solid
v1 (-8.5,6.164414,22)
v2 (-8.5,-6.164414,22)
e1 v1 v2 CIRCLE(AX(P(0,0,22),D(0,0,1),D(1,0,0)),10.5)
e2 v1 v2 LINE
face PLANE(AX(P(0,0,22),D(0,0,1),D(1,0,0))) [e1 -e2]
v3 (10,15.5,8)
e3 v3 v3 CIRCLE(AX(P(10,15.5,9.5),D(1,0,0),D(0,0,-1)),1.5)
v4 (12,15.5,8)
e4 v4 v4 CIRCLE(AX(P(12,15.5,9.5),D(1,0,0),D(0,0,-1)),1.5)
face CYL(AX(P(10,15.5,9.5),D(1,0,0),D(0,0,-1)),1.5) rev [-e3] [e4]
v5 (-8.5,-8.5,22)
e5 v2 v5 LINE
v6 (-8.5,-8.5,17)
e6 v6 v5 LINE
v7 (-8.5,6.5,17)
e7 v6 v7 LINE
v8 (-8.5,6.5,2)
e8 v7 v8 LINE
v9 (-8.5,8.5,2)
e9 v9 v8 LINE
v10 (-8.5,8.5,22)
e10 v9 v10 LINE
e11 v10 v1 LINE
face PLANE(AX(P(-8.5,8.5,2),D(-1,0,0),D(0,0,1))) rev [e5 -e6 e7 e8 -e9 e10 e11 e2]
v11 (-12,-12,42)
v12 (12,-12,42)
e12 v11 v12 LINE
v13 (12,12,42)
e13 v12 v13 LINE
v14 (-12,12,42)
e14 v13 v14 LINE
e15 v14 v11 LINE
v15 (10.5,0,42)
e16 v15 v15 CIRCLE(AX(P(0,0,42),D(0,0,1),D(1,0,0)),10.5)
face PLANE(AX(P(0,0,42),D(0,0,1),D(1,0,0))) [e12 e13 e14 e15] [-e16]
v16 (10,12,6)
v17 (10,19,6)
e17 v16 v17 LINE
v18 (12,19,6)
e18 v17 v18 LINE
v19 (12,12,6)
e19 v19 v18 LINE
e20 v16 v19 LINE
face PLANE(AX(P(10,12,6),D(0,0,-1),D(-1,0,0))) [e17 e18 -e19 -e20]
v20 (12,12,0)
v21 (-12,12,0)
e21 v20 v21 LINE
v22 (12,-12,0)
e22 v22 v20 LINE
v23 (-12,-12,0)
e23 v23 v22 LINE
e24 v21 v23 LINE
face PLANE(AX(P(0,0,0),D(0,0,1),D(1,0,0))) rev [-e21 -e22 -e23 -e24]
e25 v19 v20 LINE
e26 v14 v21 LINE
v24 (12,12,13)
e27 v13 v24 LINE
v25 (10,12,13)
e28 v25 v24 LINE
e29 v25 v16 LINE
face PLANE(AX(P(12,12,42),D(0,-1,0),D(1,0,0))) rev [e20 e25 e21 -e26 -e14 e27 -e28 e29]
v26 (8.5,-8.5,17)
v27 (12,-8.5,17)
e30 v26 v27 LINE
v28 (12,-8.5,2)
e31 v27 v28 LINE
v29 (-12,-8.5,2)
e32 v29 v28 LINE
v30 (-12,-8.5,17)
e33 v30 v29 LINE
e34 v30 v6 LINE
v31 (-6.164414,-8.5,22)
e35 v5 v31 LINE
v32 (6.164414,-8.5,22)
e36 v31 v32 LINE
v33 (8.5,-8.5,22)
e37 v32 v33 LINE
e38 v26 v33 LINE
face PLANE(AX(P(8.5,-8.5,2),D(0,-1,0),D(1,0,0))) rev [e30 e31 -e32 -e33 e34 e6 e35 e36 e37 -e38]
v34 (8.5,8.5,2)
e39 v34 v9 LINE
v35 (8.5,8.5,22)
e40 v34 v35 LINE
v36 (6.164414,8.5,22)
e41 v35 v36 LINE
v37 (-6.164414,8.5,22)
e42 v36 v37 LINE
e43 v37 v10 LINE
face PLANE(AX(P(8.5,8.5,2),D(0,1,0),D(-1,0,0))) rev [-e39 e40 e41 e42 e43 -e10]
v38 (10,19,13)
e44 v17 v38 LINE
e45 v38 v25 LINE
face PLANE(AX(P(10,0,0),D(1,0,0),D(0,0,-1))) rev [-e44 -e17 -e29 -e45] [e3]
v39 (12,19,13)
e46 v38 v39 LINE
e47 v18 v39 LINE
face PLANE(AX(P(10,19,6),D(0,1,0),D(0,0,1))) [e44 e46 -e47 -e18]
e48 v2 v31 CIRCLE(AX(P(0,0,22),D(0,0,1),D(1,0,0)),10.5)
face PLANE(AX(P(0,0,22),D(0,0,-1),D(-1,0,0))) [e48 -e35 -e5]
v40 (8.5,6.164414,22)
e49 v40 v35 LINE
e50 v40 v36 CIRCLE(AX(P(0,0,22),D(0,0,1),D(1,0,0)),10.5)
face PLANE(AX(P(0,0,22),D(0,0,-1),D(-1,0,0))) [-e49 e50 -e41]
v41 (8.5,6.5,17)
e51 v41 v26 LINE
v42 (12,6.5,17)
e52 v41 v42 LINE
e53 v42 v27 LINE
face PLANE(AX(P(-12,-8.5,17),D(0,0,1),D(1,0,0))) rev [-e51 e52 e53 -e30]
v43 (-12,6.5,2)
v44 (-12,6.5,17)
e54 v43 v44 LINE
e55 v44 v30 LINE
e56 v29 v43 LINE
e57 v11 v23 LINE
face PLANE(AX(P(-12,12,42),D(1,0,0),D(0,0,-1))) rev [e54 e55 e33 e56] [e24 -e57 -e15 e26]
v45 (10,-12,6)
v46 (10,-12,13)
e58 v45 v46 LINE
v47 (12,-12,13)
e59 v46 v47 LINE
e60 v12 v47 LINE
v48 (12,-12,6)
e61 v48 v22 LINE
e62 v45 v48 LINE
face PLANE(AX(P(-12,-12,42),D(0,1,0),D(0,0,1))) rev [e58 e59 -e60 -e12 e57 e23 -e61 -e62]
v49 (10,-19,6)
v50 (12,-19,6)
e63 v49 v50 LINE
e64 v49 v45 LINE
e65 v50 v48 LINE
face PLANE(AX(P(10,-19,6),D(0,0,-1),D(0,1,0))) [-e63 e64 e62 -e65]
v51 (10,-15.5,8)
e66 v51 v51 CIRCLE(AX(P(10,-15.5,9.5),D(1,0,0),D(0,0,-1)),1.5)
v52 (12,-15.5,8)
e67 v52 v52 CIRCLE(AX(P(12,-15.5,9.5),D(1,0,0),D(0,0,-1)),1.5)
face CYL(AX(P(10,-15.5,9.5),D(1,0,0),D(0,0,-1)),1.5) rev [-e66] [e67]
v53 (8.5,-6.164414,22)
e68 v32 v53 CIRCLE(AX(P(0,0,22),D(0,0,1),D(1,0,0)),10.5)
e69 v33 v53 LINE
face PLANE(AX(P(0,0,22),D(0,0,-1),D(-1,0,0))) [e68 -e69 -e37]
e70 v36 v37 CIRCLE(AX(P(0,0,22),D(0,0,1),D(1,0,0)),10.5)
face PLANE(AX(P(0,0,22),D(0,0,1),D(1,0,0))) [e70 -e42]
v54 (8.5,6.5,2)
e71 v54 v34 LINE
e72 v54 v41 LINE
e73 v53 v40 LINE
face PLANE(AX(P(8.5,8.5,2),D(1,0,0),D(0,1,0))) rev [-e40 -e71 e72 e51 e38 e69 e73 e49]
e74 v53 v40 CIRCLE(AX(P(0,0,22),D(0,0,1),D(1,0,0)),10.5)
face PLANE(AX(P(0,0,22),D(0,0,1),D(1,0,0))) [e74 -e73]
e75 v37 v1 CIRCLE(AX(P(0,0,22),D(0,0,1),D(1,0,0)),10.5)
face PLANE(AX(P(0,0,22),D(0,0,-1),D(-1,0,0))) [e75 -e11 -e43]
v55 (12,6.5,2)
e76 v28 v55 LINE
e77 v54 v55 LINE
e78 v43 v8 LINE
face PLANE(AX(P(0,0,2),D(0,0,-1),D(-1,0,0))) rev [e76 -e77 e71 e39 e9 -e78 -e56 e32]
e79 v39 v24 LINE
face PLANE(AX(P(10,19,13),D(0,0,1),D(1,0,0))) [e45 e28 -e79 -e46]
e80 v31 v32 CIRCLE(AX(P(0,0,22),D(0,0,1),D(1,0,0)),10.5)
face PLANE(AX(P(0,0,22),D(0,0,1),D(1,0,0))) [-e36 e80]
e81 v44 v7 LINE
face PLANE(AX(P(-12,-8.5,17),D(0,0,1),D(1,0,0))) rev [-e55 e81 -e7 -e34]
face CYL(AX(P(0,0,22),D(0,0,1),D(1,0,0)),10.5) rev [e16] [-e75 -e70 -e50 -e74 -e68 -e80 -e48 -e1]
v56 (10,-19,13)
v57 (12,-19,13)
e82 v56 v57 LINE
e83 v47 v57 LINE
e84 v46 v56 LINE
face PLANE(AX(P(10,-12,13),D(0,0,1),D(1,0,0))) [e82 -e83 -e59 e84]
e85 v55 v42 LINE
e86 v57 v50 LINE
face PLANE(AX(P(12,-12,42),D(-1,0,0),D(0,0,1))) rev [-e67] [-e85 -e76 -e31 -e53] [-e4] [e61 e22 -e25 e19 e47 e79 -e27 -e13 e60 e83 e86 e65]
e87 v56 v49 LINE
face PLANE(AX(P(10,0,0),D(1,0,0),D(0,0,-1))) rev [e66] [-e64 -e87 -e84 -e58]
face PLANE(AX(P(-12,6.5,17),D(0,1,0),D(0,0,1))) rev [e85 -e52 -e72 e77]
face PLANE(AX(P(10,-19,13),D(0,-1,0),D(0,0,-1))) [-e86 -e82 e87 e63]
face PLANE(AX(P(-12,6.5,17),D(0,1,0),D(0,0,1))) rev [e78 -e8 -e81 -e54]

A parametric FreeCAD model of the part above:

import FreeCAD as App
import Part
import Sketcher

V = App.Vector
Q = App.Units.Quantity


def add_polygon(sketch, points):
    """Adds a closed chain of lines whose ends are joined by coincident constraints."""
    first, n = sketch.GeometryCount, len(points)
    for a, b in zip(points, points[1:] + points[:1]):
        sketch.addGeometry(Part.LineSegment(App.Vector(*a, 0), App.Vector(*b, 0)), False)
    for i in range(n):
        sketch.addConstraint(Sketcher.Constraint("Coincident", first + i, 2, first + (i + 1) % n, 1))

doc = App.newDocument("Part")
params = doc.addObject("Spreadsheet::Sheet", "Params")
for row, (alias, value) in enumerate([
    ("sketch1_width", "24 mm"),
    ("pad1_length", "42 mm"),
    ("sketch2_diameter", "21 mm"),
    ("pocket1_length", "20 mm"),
    ("sketch3_width", "17 mm"),
    ("pocket2_length", "20 mm"),
    ("sketch4_width", "15 mm"),
    ("sketch5_diameter", "3 mm"),
    ("sketch5_width", "7 mm"),
    ("pad2_length", "2 mm"),
], start=1):
    params.set(f"A{row}", alias)
    params.set(f"B{row}", "=" + value)
    params.setAlias(f"B{row}", alias)

body = doc.addObject("PartDesign::Body", "Body")

sketch1 = body.newObject("Sketcher::SketchObject", "Sketch")
sketch1.AttachmentSupport = (doc.getObject("XY_Plane"), [""])
sketch1.MapMode = "FlatFace"
add_polygon(sketch1, [(-12, 12), (-12, -12), (12, -12), (12, 12)])
sketch1.addConstraint([
    Sketcher.Constraint("Vertical", 0),
    Sketcher.Constraint("Horizontal", 1),
    Sketcher.Constraint("Vertical", 2),
    Sketcher.Constraint("Horizontal", 3),
    Sketcher.Constraint("Symmetric", 0, 2, 2, 2, -1, 1),
    Sketcher.Constraint("Equal", 3, 0),
    Sketcher.Constraint("DistanceX", 1, 1, 1, 2, Q("24 mm")),
])
sketch1.setExpression("Constraints[10]", "Params.sketch1_width")
pad1 = body.newObject("PartDesign::Pad", "Pad")
pad1.Profile = sketch1
pad1.setExpression("Length", "Params.pad1_length")

sketch2 = body.newObject("Sketcher::SketchObject", "Sketch001")
sketch2.AttachmentSupport = (doc.getObject("XY_Plane"), [""])
sketch2.MapMode = "FlatFace"
sketch2.AttachmentOffset = App.Placement(V(0, 0, 42), App.Rotation())
sketch2.addGeometry(Part.Circle(V(0, 0, 0), V(0, 0, 1), 10), False)
sketch2.addConstraint([
    Sketcher.Constraint("Coincident", 0, 3, -1, 1),
    Sketcher.Constraint("Diameter", 0, Q("21 mm")),
])
sketch2.setExpression("Constraints[1]", "Params.sketch2_diameter")
pocket1 = body.newObject("PartDesign::Pocket", "Pocket")
pocket1.Profile = sketch2
pocket1.setExpression("Length", "Params.pocket1_length")

sketch3 = body.newObject("Sketcher::SketchObject", "Sketch002")
sketch3.AttachmentSupport = (doc.getObject("XY_Plane"), [""])
sketch3.MapMode = "FlatFace"
sketch3.AttachmentOffset = App.Placement(V(0, 0, 22), App.Rotation())
add_polygon(sketch3, [(-8, 8), (-8, -8), (8, -8), (8, 8)])
sketch3.addConstraint([
    Sketcher.Constraint("Vertical", 0),
    Sketcher.Constraint("Horizontal", 1),
    Sketcher.Constraint("Vertical", 2),
    Sketcher.Constraint("Horizontal", 3),
    Sketcher.Constraint("Symmetric", 0, 2, 2, 2, -1, 1),
    Sketcher.Constraint("Equal", 3, 0),
    Sketcher.Constraint("DistanceX", 1, 1, 1, 2, Q("17 mm")),
])
sketch3.setExpression("Constraints[10]", "Params.sketch3_width")
pocket2 = body.newObject("PartDesign::Pocket", "Pocket001")
pocket2.Profile = sketch3
pocket2.setExpression("Length", "Params.pocket2_length")

sketch4 = body.newObject("Sketcher::SketchObject", "Sketch003")
sketch4.AttachmentSupport = (doc.getObject("YZ_Plane"), [""])
sketch4.MapMode = "FlatFace"
sketch4.AttachmentOffset = App.Placement(V(0, 0, 12), App.Rotation())
add_polygon(sketch4, [(6, 17), (-8, 17), (-8, 2), (6, 2)])
sketch4.addConstraint([
    Sketcher.Constraint("Horizontal", 0),
    Sketcher.Constraint("Vertical", 1),
    Sketcher.Constraint("Horizontal", 2),
    Sketcher.Constraint("Vertical", 3),
    Sketcher.Constraint("Equal", 2, 1),
    Sketcher.Constraint("DistanceX", 0, 2, 0, 1, Q("15 mm")),
    Sketcher.Constraint("DistanceY", -1, 1, 0, 2, Q("17 mm")),
    Sketcher.Constraint("DistanceX", 0, 2, -1, 1, Q("8.5 mm")),
])
sketch4.setExpression("Constraints[9]", "Params.sketch4_width")
pocket3 = body.newObject("PartDesign::Pocket", "Pocket002")
pocket3.Profile = sketch4
pocket3.Type = "ThroughAll"

sketch5 = body.newObject("Sketcher::SketchObject", "Sketch004")
sketch5.AttachmentSupport = (doc.getObject("YZ_Plane"), [""])
sketch5.MapMode = "FlatFace"
sketch5.AttachmentOffset = App.Placement(V(0, 0, 12), App.Rotation())
add_polygon(sketch5, [(19, 13), (12, 13), (12, 6), (19, 6)])
sketch5.addGeometry(Part.Circle(V(15.5, 9.5, 0), V(0, 0, 1), 1.5), False)
add_polygon(sketch5, [(-12, 13), (-19, 13), (-19, 6), (-12, 6)])
sketch5.addGeometry(Part.Circle(V(-15.5, 9.5, 0), V(0, 0, 1), 1.5), False)
sketch5.addConstraint([
    Sketcher.Constraint("Horizontal", 0),
    Sketcher.Constraint("Vertical", 1),
    Sketcher.Constraint("Horizontal", 2),
    Sketcher.Constraint("Vertical", 3),
    Sketcher.Constraint("Horizontal", 5),
    Sketcher.Constraint("Vertical", 6),
    Sketcher.Constraint("Horizontal", 7),
    Sketcher.Constraint("Vertical", 8),
    Sketcher.Constraint("Equal", 4, 9),
    Sketcher.Constraint("Symmetric", 4, 3, 9, 3, -2),
    Sketcher.Constraint("Symmetric", 3, 2, 5, 2, -2),
    Sketcher.Constraint("Symmetric", 1, 2, 7, 2, -2),
    Sketcher.Constraint("Equal", 7, 1),
    Sketcher.Constraint("Diameter", 4, Q("3 mm")),
    Sketcher.Constraint("DistanceX", 0, 2, 0, 1, Q("7 mm")),
    Sketcher.Constraint("DistanceX", -1, 1, 0, 2, Q("12 mm")),
    Sketcher.Constraint("DistanceY", -1, 1, 0, 2, Q("13 mm")),
    Sketcher.Constraint("DistanceX", 9, 3, 4, 3, Q("31 mm")),
    Sketcher.Constraint("DistanceY", -1, 1, 4, 3, Q("9.5 mm")),
])
sketch5.setExpression("Constraints[21]", "Params.sketch5_diameter")
sketch5.setExpression("Constraints[22]", "Params.sketch5_width")
pad2 = body.newObject("PartDesign::Pad", "Pad001")
pad2.Profile = sketch5
pad2.setExpression("Length", "Params.pad2_length")
pad2.Reversed = True

doc.recompute()
